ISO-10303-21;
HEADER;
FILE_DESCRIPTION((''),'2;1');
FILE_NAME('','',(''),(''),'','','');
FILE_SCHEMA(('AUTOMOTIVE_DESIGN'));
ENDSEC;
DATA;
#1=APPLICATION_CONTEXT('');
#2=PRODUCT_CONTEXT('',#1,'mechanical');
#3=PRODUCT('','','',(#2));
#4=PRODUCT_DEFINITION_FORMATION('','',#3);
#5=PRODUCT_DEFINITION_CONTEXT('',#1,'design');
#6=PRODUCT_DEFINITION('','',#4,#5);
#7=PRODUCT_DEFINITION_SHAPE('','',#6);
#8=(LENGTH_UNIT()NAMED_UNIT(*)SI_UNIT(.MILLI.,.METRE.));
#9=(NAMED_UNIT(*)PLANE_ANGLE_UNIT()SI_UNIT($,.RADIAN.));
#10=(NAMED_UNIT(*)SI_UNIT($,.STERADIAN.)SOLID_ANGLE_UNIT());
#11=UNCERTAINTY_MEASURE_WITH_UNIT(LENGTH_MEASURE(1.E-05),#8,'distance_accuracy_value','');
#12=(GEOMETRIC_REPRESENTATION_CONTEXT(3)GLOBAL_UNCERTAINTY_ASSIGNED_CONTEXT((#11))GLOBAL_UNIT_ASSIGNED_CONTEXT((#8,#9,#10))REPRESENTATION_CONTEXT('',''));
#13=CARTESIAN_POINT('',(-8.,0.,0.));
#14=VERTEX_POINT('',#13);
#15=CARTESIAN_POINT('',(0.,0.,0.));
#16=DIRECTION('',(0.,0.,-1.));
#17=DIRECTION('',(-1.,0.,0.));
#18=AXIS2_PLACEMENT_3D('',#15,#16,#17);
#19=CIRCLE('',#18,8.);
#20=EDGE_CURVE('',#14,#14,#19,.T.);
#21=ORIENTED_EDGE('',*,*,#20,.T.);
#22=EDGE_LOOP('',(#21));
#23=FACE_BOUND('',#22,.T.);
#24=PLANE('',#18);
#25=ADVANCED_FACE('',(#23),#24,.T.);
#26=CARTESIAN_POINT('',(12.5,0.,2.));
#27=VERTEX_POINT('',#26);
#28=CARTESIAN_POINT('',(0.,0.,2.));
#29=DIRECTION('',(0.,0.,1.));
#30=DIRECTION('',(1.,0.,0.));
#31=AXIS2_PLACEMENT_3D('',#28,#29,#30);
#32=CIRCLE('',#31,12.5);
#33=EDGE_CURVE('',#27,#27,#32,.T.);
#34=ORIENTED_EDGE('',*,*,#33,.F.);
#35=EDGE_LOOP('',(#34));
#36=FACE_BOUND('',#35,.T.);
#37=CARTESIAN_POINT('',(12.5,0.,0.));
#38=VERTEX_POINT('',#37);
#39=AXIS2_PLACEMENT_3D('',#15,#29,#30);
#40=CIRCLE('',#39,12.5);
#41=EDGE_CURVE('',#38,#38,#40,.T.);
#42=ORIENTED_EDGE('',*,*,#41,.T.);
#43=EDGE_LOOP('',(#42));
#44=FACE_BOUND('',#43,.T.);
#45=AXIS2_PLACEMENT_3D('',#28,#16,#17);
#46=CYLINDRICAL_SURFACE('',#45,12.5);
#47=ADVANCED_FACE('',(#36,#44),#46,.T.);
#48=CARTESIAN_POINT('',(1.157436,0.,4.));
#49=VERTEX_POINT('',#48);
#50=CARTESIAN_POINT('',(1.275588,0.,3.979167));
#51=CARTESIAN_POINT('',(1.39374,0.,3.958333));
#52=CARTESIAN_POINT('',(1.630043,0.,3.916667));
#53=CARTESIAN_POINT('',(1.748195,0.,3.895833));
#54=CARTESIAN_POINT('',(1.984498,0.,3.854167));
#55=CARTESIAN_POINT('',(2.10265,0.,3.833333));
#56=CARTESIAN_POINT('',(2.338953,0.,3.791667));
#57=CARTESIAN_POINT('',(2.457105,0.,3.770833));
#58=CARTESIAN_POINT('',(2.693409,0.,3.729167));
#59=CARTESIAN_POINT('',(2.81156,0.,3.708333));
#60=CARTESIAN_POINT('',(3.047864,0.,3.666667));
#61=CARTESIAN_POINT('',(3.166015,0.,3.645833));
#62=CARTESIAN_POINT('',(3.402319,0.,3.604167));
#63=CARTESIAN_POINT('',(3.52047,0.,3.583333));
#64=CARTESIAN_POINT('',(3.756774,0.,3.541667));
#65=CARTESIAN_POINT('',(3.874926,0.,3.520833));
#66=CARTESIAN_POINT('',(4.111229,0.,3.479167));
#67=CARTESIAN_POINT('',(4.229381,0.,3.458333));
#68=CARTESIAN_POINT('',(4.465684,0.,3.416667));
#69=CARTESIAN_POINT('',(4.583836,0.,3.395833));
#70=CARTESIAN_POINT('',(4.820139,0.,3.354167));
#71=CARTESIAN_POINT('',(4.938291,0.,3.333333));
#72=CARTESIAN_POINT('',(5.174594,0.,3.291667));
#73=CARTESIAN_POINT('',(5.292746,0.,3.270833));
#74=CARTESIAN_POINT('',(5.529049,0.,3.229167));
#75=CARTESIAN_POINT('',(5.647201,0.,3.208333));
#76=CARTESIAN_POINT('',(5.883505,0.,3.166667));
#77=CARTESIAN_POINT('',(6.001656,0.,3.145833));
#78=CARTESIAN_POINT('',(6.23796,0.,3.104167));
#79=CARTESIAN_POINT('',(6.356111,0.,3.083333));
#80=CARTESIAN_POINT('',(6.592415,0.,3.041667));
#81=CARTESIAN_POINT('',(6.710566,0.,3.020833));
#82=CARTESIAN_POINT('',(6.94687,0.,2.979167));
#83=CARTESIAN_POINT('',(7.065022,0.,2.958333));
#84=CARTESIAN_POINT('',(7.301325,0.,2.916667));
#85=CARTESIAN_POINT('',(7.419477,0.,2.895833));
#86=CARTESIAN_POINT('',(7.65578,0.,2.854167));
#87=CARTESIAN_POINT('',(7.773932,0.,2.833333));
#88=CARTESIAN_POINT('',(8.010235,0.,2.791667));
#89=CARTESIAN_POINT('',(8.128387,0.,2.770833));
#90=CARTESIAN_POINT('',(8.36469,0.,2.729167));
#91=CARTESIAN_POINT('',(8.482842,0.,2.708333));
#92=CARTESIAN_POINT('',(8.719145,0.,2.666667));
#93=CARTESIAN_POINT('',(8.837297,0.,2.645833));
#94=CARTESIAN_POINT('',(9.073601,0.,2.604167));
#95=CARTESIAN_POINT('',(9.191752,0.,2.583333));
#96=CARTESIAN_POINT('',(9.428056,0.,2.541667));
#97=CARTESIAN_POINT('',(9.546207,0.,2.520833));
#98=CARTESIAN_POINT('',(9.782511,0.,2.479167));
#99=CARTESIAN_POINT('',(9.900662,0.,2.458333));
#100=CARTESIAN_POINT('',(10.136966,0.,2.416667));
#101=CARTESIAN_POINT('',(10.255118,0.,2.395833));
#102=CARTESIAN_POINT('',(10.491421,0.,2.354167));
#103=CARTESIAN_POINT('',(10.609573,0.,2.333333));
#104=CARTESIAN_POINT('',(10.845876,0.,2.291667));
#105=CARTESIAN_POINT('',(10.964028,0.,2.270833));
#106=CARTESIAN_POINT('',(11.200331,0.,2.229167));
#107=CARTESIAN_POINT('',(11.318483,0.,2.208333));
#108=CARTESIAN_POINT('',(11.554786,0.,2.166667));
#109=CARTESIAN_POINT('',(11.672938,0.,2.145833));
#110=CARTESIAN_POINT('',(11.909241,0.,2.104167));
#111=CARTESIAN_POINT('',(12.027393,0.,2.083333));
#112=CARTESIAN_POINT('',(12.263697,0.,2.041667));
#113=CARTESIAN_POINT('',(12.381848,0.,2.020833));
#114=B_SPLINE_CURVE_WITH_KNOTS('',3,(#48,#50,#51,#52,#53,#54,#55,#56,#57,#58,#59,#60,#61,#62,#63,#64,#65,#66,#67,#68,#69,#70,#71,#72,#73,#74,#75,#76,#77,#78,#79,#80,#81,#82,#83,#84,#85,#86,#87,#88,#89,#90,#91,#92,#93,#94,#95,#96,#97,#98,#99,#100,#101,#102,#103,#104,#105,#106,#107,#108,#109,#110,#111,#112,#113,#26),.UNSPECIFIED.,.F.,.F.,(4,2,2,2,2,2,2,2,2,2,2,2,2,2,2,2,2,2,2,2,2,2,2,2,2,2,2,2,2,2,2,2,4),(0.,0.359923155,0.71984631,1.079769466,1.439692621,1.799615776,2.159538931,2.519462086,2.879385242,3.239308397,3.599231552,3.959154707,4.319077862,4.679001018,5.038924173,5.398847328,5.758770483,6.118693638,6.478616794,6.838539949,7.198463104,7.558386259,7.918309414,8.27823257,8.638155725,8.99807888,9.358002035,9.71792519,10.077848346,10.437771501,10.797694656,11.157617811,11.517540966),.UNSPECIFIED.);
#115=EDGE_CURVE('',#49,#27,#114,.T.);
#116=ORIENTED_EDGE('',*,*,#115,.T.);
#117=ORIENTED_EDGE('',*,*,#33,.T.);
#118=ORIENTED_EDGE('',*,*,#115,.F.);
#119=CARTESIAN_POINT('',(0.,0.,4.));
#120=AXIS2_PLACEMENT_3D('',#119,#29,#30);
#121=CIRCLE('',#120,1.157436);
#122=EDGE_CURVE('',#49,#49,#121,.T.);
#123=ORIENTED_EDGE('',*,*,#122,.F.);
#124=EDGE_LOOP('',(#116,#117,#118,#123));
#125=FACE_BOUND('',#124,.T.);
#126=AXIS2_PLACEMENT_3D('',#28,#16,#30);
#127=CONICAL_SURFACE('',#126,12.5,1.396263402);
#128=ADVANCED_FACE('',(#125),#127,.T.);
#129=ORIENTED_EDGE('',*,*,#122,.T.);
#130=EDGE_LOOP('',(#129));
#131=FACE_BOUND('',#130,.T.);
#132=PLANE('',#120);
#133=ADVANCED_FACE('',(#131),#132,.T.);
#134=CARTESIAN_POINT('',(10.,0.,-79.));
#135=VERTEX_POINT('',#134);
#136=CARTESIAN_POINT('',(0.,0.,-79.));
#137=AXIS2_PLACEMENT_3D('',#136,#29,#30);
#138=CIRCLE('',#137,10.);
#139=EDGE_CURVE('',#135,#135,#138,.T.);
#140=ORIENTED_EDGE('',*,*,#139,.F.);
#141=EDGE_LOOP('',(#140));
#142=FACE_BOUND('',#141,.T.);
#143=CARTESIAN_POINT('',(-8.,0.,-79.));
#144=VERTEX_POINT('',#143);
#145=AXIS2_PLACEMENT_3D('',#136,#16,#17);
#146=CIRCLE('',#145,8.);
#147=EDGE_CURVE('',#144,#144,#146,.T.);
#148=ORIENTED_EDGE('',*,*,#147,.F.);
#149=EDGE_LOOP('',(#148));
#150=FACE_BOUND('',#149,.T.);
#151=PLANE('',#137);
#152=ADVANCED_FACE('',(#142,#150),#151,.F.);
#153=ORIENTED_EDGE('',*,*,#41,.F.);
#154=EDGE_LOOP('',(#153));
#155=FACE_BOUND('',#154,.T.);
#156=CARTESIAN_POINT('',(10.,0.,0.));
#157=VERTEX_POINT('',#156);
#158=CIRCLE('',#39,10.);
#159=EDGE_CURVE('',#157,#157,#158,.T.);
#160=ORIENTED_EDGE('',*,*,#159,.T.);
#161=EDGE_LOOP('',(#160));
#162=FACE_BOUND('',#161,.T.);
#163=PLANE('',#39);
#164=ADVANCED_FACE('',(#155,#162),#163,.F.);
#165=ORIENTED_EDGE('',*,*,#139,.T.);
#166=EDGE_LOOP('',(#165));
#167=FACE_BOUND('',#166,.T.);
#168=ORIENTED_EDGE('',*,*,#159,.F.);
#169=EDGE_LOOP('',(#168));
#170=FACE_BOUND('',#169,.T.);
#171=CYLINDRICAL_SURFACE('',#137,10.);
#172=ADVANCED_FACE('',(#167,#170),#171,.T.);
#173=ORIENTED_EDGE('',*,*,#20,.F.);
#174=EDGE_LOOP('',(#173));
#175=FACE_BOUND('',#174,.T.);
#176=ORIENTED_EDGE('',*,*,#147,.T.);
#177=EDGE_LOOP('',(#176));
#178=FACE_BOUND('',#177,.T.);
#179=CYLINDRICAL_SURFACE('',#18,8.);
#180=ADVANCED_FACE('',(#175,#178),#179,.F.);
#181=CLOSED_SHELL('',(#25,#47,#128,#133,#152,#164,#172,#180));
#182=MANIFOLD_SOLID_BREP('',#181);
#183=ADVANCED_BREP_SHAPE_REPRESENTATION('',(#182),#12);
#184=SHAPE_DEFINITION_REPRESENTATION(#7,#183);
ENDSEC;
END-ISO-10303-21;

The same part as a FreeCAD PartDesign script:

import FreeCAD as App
import Part
import Sketcher
from FreeCAD import Vector

doc = App.newDocument("Part")
body = doc.addObject("PartDesign::Body", "Body")

# Sketch on XY plane
sketch1 = body.newObject("Sketcher::SketchObject", "Sketch")
sketch1.AttachmentSupport = (doc.getObject("XY_Plane"), [""])
sketch1.MapMode = "FlatFace"
sketch1.addGeometry(Part.Circle(Vector(0, 0, 0), Vector(0, 0, 1), 10), False)
sketch1.addConstraint(Sketcher.Constraint("Coincident", 0, 3, -1, 1))
sketch1.addConstraint(Sketcher.Constraint("Diameter", 0, 20.0))
pad1 = body.newObject("PartDesign::Pad", "Pad")
pad1.Profile = sketch1
pad1.Length = 79
pad1.Reversed = True

# Sketch on XY plane
sketch2 = body.newObject("Sketcher::SketchObject", "Sketch001")
sketch2.AttachmentSupport = (doc.getObject("XY_Plane"), [""])
sketch2.MapMode = "FlatFace"
sketch2.addGeometry(Part.Circle(Vector(0, 0, 0), Vector(0, 0, 1), 12), False)
sketch2.addConstraint(Sketcher.Constraint("Coincident", 0, 3, -1, 1))
sketch2.addConstraint(Sketcher.Constraint("Diameter", 0, 25.0))
pad2 = body.newObject("PartDesign::Pad", "Pad001")
pad2.Profile = sketch2
pad2.Length = 2

# Sketch on XY plane
sketch3 = body.newObject("Sketcher::SketchObject", "Sketch002")
sketch3.AttachmentSupport = (doc.getObject("XY_Plane"), [""])
sketch3.MapMode = "FlatFace"
sketch3.AttachmentOffset = App.Placement(Vector(0, 0, 2), App.Rotation())
sketch3.addGeometry(Part.Circle(Vector(0, 0, 0), Vector(0, 0, 1), 12), False)
sketch3.addConstraint(Sketcher.Constraint("Coincident", 0, 3, -1, 1))
sketch3.addConstraint(Sketcher.Constraint("Diameter", 0, 25.0))
pad3 = body.newObject("PartDesign::Pad", "Pad002")
pad3.Profile = sketch3
pad3.Length = 2
pad3.TaperAngle = -80

# Sketch on XY plane
sketch4 = body.newObject("Sketcher::SketchObject", "Sketch003")
sketch4.AttachmentSupport = (doc.getObject("XY_Plane"), [""])
sketch4.MapMode = "FlatFace"
sketch4.AttachmentOffset = App.Placement(Vector(0, 0, -79), App.Rotation())
sketch4.addGeometry(Part.Circle(Vector(0, 0, 0), Vector(0, 0, 1), 8), False)
sketch4.addConstraint(Sketcher.Constraint("Coincident", 0, 3, -1, 1))
sketch4.addConstraint(Sketcher.Constraint("Diameter", 0, 16.0))
pocket1 = body.newObject("PartDesign::Pocket", "Pocket")
pocket1.Profile = sketch4
pocket1.Length = 79
pocket1.Reversed = True

doc.recompute()
